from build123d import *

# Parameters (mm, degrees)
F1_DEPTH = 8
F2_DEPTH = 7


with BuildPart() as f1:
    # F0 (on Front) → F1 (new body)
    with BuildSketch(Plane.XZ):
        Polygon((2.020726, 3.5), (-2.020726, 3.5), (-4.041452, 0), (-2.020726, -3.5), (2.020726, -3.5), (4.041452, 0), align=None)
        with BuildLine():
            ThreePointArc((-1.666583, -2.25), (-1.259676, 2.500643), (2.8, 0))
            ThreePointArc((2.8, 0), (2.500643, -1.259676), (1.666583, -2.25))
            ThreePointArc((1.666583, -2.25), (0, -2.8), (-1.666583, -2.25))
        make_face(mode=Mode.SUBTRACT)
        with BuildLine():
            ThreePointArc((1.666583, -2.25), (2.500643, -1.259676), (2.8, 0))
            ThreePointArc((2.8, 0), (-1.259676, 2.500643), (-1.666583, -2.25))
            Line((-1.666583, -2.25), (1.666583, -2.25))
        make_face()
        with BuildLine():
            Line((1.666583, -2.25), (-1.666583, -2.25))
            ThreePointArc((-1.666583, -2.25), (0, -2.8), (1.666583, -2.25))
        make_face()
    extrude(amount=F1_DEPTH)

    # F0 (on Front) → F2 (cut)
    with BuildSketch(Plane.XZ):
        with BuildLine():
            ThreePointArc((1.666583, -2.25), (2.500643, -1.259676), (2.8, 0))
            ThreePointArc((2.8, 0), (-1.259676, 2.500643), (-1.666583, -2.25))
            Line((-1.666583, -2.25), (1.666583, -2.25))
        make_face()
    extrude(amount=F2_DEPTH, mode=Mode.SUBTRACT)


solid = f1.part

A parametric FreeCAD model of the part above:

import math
import FreeCAD as App
import Part
import Sketcher

V = App.Vector
Q = App.Units.Quantity

doc = App.newDocument("Part")
body = doc.addObject("PartDesign::Body", "Body")

# Sketch on XZ plane
sketch1 = body.newObject("Sketcher::SketchObject", "Sketch")
sketch1.AttachmentSupport = (doc.getObject("XZ_Plane"), [""])
sketch1.MapMode = "FlatFace"
sketch1.addGeometry([
    Part.LineSegment(V(2.020726, 3.5, 0), V(-2.020726, 3.5, 0)),  # 0
    Part.LineSegment(V(-2.020726, 3.5, 0), V(-4.041452, 0, 0)),  # 1
    Part.LineSegment(V(-4.041452, 0, 0), V(-2.020726, -3.5, 0)),  # 2
    Part.LineSegment(V(-2.020726, -3.5, 0), V(2.020726, -3.5, 0)),  # 3
    Part.LineSegment(V(2.020726, -3.5, 0), V(4.041452, 0, 0)),  # 4
    Part.LineSegment(V(4.041452, 0, 0), V(2.020726, 3.5, 0)),  # 5
], False)
sketch1.addConstraint([
    Sketcher.Constraint("Coincident", 0, 2, 1, 1),
    Sketcher.Constraint("Coincident", 1, 2, 2, 1),
    Sketcher.Constraint("Coincident", 2, 2, 3, 1),
    Sketcher.Constraint("Coincident", 3, 2, 4, 1),
    Sketcher.Constraint("Coincident", 4, 2, 5, 1),
    Sketcher.Constraint("Coincident", 5, 2, 0, 1),
    Sketcher.Constraint("Horizontal", 0),
    Sketcher.Constraint("Horizontal", 3),
    Sketcher.Constraint("Symmetric", 0, 2, 3, 2, -1, 1),
    Sketcher.Constraint("Symmetric", 1, 2, 4, 2, -1, 1),
    Sketcher.Constraint("PointOnObject", 1, 2, -1),
    Sketcher.Constraint("Parallel", 2, 5),
    Sketcher.Constraint("Vertical", 0, 2, 2, 2),
    Sketcher.Constraint("Angle", 1, Q("-120.000001 deg")),
    Sketcher.Constraint("DistanceY", 2, 2, 0, 2, Q("7 mm")),
    Sketcher.Constraint("DistanceX", 0, 2, 0, 1, Q("4.041452 mm")),
])
pad1 = body.newObject("PartDesign::Pad", "Pad")
pad1.Profile = sketch1
pad1.Length = 8

# Sketch on XZ plane
sketch2 = body.newObject("Sketcher::SketchObject", "Sketch001")
sketch2.AttachmentSupport = (doc.getObject("XZ_Plane"), [""])
sketch2.MapMode = "FlatFace"
sketch2.addGeometry([
    Part.ArcOfCircle(Part.Circle(V(-0.000001, 0.000001, 0), V(0, 0, 1), 2.800001), math.radians(-53.472518), math.radians(-0.00001)),
    Part.ArcOfCircle(Part.Circle(V(0, 0, 0), V(0, 0, 1), 2.8), math.radians(0), math.radians(233.472518)),
    Part.LineSegment(V(-1.666583, -2.25, 0), V(1.666583, -2.25, 0)),
], False)
sketch2.addConstraint([
    Sketcher.Constraint("Tangent", 0, 2, 1, 1),
    Sketcher.Constraint("Coincident", 1, 2, 2, 1),
    Sketcher.Constraint("Coincident", 2, 2, 0, 1),
    Sketcher.Constraint("Horizontal", 2),
    Sketcher.Constraint("Coincident", 0, 3, -1, 1),
    Sketcher.Constraint("Equal", 0, 1),
    Sketcher.Constraint("PointOnObject", 0, 2, -1),
    Sketcher.Constraint("Radius", 0, Q("2.800001 mm")),
    Sketcher.Constraint("DistanceY", 1, 2, -1, 1, Q("2.25 mm")),
])
pocket1 = body.newObject("PartDesign::Pocket", "Pocket")
pocket1.Profile = sketch2
pocket1.Length = 7
pocket1.Reversed = True

doc.recompute()
